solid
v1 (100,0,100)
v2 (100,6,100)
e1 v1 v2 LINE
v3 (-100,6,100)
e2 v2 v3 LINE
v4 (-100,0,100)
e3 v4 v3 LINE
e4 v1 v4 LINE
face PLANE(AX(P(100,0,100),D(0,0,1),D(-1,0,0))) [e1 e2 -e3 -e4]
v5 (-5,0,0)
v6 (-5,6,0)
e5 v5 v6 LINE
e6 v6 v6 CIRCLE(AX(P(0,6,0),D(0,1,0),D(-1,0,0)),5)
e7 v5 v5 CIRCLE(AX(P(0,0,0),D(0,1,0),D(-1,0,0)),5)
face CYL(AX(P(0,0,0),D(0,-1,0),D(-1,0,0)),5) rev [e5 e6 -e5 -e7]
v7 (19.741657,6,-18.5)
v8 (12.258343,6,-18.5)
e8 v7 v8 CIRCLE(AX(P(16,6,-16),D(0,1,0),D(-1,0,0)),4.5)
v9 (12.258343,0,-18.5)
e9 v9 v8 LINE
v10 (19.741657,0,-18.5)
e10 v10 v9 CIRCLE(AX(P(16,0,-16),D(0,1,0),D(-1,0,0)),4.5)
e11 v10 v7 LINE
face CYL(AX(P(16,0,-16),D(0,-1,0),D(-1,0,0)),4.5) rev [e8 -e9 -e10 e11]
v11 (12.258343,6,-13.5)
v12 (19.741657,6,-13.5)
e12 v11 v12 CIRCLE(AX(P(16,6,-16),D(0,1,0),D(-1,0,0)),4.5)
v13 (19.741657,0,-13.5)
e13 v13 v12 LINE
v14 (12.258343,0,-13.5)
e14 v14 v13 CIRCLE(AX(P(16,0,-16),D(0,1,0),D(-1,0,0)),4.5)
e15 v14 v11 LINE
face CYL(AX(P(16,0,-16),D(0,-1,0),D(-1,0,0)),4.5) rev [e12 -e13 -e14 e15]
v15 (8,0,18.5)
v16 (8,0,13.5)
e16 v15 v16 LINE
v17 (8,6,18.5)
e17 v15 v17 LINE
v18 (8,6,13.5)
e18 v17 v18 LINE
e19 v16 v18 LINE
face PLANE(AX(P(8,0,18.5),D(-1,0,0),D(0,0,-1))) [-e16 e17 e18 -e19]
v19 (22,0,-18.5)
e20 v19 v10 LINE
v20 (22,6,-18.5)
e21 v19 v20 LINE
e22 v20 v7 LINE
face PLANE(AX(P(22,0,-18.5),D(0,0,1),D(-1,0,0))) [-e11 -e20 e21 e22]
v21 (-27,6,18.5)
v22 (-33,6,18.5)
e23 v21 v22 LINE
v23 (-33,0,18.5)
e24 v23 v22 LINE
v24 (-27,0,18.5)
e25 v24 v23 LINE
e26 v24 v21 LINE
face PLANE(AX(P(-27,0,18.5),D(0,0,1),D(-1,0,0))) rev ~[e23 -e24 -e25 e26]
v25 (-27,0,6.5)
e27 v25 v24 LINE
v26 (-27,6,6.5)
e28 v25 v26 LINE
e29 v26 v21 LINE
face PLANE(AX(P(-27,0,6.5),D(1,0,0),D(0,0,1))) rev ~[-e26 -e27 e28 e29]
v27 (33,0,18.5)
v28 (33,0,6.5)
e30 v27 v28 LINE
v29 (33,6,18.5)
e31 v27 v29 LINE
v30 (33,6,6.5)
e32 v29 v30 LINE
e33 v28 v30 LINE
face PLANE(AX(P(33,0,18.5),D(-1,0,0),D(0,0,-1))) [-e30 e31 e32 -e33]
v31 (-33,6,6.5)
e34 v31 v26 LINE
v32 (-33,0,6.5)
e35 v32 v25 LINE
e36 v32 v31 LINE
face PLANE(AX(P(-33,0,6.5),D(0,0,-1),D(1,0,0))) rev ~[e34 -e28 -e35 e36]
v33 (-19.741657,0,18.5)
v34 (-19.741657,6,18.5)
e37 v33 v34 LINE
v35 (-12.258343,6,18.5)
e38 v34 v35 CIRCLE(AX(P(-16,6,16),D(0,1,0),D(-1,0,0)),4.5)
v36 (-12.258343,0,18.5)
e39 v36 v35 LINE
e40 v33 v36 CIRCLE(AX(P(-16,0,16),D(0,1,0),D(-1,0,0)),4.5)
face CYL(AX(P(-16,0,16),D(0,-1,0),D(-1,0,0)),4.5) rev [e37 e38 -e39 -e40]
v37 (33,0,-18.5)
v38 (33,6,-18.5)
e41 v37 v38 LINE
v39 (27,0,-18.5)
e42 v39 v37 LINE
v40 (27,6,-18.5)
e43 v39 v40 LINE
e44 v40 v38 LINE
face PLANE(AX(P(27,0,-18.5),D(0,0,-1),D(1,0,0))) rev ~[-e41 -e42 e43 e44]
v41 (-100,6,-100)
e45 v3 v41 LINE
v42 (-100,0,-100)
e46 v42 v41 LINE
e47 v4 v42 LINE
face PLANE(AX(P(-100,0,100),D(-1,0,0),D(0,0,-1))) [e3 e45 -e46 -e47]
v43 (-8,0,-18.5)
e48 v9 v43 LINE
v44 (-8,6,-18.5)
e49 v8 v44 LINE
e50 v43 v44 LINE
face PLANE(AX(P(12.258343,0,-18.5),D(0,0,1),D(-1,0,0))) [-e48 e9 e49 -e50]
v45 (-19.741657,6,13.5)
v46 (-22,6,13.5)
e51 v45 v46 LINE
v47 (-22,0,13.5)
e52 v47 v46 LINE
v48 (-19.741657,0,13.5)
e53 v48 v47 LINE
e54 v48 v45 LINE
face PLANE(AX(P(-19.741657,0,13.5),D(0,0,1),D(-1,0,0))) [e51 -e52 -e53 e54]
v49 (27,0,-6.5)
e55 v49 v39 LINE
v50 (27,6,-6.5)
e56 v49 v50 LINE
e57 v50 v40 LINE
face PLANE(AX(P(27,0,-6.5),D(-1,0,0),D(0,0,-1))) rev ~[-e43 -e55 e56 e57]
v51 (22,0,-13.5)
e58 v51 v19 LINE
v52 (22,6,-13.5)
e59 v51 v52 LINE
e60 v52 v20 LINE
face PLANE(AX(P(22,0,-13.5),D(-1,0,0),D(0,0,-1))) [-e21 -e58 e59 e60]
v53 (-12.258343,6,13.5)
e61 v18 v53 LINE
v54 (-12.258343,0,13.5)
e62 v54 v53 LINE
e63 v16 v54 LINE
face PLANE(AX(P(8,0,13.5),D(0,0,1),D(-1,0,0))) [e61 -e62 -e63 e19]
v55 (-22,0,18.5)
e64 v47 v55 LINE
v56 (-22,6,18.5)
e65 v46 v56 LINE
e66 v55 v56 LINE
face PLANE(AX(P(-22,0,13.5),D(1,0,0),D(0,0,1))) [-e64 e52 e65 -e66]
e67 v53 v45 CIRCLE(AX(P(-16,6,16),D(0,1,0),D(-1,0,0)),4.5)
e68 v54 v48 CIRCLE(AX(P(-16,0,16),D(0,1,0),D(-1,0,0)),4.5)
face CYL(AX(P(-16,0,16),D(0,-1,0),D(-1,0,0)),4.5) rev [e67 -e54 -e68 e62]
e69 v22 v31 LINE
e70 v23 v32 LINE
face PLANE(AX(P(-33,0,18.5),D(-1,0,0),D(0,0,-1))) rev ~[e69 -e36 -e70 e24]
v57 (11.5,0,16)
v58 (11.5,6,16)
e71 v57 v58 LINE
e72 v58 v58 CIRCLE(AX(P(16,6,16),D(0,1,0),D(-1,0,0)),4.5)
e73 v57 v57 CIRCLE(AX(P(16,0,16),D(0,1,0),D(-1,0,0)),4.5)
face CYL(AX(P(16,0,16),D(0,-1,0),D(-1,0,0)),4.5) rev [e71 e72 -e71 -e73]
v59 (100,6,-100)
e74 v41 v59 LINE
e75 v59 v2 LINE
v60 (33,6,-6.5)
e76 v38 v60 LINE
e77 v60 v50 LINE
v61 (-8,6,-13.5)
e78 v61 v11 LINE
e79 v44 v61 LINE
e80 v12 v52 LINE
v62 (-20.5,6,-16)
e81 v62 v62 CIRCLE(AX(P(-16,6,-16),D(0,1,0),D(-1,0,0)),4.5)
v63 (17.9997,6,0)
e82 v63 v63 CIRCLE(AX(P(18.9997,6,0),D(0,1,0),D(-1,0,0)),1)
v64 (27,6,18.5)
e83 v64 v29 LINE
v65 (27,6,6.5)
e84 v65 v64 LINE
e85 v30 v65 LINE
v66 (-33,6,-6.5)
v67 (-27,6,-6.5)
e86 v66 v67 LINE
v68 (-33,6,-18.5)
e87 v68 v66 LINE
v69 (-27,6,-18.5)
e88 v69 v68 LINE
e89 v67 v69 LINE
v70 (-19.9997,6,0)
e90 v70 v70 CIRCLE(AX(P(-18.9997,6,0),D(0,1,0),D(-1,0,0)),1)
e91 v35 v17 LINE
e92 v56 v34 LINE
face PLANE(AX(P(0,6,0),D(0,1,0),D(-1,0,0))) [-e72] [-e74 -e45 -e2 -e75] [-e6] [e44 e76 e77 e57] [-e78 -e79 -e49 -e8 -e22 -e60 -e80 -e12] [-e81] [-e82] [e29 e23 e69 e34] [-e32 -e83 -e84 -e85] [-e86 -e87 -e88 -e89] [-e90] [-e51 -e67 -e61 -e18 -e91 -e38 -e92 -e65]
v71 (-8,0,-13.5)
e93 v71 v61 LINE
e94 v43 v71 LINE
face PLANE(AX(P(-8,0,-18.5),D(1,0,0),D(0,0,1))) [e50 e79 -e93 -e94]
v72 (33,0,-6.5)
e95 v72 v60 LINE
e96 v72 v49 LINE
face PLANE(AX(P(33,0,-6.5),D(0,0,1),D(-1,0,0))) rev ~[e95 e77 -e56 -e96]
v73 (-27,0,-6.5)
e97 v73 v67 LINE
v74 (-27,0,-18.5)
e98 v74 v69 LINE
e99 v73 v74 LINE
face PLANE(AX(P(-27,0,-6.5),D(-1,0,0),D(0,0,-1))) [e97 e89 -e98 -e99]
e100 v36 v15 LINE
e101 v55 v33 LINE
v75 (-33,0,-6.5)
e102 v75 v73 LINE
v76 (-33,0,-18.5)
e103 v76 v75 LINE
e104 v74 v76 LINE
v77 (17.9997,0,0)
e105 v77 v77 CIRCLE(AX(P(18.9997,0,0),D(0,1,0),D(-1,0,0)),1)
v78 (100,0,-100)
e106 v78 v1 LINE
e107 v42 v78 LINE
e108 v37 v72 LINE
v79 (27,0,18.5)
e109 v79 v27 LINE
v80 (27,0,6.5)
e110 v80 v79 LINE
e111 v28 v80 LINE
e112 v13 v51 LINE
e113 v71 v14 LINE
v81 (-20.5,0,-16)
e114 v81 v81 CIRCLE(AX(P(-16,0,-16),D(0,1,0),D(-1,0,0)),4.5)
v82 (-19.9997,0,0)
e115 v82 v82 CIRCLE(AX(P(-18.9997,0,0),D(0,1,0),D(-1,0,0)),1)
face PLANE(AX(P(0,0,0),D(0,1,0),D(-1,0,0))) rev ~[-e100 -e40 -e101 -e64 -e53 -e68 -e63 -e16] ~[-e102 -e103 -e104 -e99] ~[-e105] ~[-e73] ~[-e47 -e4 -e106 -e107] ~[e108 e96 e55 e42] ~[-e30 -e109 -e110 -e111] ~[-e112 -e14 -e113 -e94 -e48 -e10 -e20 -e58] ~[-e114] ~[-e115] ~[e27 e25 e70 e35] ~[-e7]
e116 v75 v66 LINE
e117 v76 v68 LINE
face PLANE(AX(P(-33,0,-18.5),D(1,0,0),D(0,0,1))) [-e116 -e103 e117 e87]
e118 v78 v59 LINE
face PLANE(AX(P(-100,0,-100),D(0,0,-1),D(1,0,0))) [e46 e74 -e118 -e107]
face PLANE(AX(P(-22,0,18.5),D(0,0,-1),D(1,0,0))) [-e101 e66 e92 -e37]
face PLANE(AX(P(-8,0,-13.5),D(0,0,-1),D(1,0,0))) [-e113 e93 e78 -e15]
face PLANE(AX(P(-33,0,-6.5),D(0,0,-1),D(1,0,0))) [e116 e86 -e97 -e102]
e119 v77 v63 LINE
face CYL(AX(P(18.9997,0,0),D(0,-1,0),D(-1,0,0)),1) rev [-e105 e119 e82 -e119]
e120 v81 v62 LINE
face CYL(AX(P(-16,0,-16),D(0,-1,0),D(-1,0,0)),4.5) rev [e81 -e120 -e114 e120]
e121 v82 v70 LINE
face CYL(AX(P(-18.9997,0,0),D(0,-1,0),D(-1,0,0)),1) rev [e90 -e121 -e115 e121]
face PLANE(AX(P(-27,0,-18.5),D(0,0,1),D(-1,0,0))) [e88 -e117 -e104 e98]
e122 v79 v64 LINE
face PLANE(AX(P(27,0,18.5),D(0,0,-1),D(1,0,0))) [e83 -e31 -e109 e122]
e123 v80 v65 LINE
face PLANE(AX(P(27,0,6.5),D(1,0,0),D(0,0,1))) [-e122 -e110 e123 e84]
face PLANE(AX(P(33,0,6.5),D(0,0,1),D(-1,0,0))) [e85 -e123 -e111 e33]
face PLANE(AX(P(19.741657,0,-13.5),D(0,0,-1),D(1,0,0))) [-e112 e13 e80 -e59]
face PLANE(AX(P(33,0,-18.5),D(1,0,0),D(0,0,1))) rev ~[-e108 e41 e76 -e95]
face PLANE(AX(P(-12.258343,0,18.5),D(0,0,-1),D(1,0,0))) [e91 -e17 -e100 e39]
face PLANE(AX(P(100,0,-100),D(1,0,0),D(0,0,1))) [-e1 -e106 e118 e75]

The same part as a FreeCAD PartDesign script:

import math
import FreeCAD as App
import Part
import Sketcher

V = App.Vector


def add_polygon(sketch, points):
    """Adds a closed chain of lines whose ends are joined by coincident constraints."""
    first, n = sketch.GeometryCount, len(points)
    for a, b in zip(points, points[1:] + points[:1]):
        sketch.addGeometry(Part.LineSegment(App.Vector(*a, 0), App.Vector(*b, 0)), False)
    for i in range(n):
        sketch.addConstraint(Sketcher.Constraint("Coincident", first + i, 2, first + (i + 1) % n, 1))

doc = App.newDocument("Part")
body = doc.addObject("PartDesign::Body", "Body")

# Sketch on XZ plane
sketch1 = doc.addObject("Sketcher::SketchObject", "Sketch")
body.addObject(sketch1)
sketch1.AttachmentSupport = (doc.XZ_Plane, [""])
sketch1.MapMode = "FlatFace"
add_polygon(sketch1, [(-100, 100), (100, 100), (100, -100), (-100, -100)])  # lines 0-3
add_polygon(sketch1, [(27, -6.5), (27, -18.5), (33, -18.5), (33, -6.5)])  # lines 4-7
sketch1.addGeometry(Part.LineSegment(V(12.3, -13.5, 0), V(-8, -13.5, 0)), False)  # 8
sketch1.addGeometry(Part.LineSegment(V(-8, -13.5, 0), V(-8, -18.5, 0)), False)  # 9
sketch1.addGeometry(Part.LineSegment(V(-8, -18.5, 0), V(12.3, -18.5, 0)), False)  # 10
sketch1.addGeometry(Part.ArcOfCircle(Part.Circle(V(16, -16, 0), V(0, 0, 1), 4.5), math.radians(-146), math.radians(-34)), False)  # 11
sketch1.addGeometry(Part.LineSegment(V(19.7, -18.5, 0), V(22, -18.5, 0)), False)  # 12
sketch1.addGeometry(Part.LineSegment(V(22, -18.5, 0), V(22, -13.5, 0)), False)  # 13
sketch1.addGeometry(Part.LineSegment(V(22, -13.5, 0), V(19.7, -13.5, 0)), False)  # 14
sketch1.addGeometry(Part.ArcOfCircle(Part.Circle(V(16, -16, 0), V(0, 0, 1), 4.5), math.radians(34), math.radians(146)), False)  # 15
sketch1.addGeometry(Part.Circle(V(-16, -16, 0), V(0, 0, 1), 4.5), False)  # 16
add_polygon(sketch1, [(-33, -18.5), (-27, -18.5), (-27, -6.5), (-33, -6.5)])  # lines 17-20
add_polygon(sketch1, [(27, 18.5), (27, 6.5), (33, 6.5), (33, 18.5)])  # lines 21-24
sketch1.addGeometry(Part.Circle(V(19, 0, 0), V(0, 0, 1), 1), False)  # 25
sketch1.addGeometry(Part.Circle(V(16, 16, 0), V(0, 0, 1), 4.5), False)  # 26
sketch1.addGeometry(Part.Circle(V(0, 0, 0), V(0, 0, 1), 5), False)  # 27
sketch1.addGeometry(Part.Circle(V(-19, 0, 0), V(0, 0, 1), 1), False)  # 28
sketch1.addGeometry(Part.LineSegment(V(-12.3, 13.5, 0), V(8, 13.5, 0)), False)  # 29
sketch1.addGeometry(Part.LineSegment(V(8, 13.5, 0), V(8, 18.5, 0)), False)  # 30
sketch1.addGeometry(Part.LineSegment(V(8, 18.5, 0), V(-12.3, 18.5, 0)), False)  # 31
sketch1.addGeometry(Part.ArcOfCircle(Part.Circle(V(-16, 16, 0), V(0, 0, 1), 4.5), math.radians(34), math.radians(146)), False)  # 32
sketch1.addGeometry(Part.LineSegment(V(-19.7, 18.5, 0), V(-22, 18.5, 0)), False)  # 33
sketch1.addGeometry(Part.LineSegment(V(-22, 18.5, 0), V(-22, 13.5, 0)), False)  # 34
sketch1.addGeometry(Part.LineSegment(V(-22, 13.5, 0), V(-19.7, 13.5, 0)), False)  # 35
sketch1.addGeometry(Part.ArcOfCircle(Part.Circle(V(-16, 16, 0), V(0, 0, 1), 4.5), math.radians(-146), math.radians(-34)), False)  # 36
add_polygon(sketch1, [(-27, 6.5), (-27, 18.5), (-33, 18.5), (-33, 6.5)])  # lines 37-40
sketch1.addConstraint(Sketcher.Constraint("Coincident", 8, 2, 9, 1))
sketch1.addConstraint(Sketcher.Constraint("Coincident", 9, 2, 10, 1))
sketch1.addConstraint(Sketcher.Constraint("Coincident", 10, 2, 11, 1))
sketch1.addConstraint(Sketcher.Constraint("Coincident", 11, 2, 12, 1))
sketch1.addConstraint(Sketcher.Constraint("Coincident", 12, 2, 13, 1))
sketch1.addConstraint(Sketcher.Constraint("Coincident", 13, 2, 14, 1))
sketch1.addConstraint(Sketcher.Constraint("Coincident", 14, 2, 15, 1))
sketch1.addConstraint(Sketcher.Constraint("Coincident", 15, 2, 8, 1))
sketch1.addConstraint(Sketcher.Constraint("Coincident", 29, 2, 30, 1))
sketch1.addConstraint(Sketcher.Constraint("Coincident", 30, 2, 31, 1))
sketch1.addConstraint(Sketcher.Constraint("Coincident", 31, 2, 32, 1))
sketch1.addConstraint(Sketcher.Constraint("Coincident", 32, 2, 33, 1))
sketch1.addConstraint(Sketcher.Constraint("Coincident", 33, 2, 34, 1))
sketch1.addConstraint(Sketcher.Constraint("Coincident", 34, 2, 35, 1))
sketch1.addConstraint(Sketcher.Constraint("Coincident", 35, 2, 36, 1))
sketch1.addConstraint(Sketcher.Constraint("Coincident", 36, 2, 29, 1))
sketch1.addConstraint(Sketcher.Constraint("Horizontal", 0))
sketch1.addConstraint(Sketcher.Constraint("Vertical", 1))
sketch1.addConstraint(Sketcher.Constraint("Horizontal", 2))
sketch1.addConstraint(Sketcher.Constraint("Vertical", 3))
sketch1.addConstraint(Sketcher.Constraint("Vertical", 4))
sketch1.addConstraint(Sketcher.Constraint("Horizontal", 5))
sketch1.addConstraint(Sketcher.Constraint("Vertical", 6))
sketch1.addConstraint(Sketcher.Constraint("Horizontal", 7))
sketch1.addConstraint(Sketcher.Constraint("Horizontal", 8))
sketch1.addConstraint(Sketcher.Constraint("Vertical", 9))
sketch1.addConstraint(Sketcher.Constraint("Horizontal", 10))
sketch1.addConstraint(Sketcher.Constraint("Horizontal", 12))
sketch1.addConstraint(Sketcher.Constraint("Vertical", 13))
sketch1.addConstraint(Sketcher.Constraint("Horizontal", 14))
sketch1.addConstraint(Sketcher.Constraint("Horizontal", 17))
sketch1.addConstraint(Sketcher.Constraint("Vertical", 18))
sketch1.addConstraint(Sketcher.Constraint("Horizontal", 19))
sketch1.addConstraint(Sketcher.Constraint("Vertical", 20))
sketch1.addConstraint(Sketcher.Constraint("Vertical", 21))
sketch1.addConstraint(Sketcher.Constraint("Horizontal", 22))
sketch1.addConstraint(Sketcher.Constraint("Vertical", 23))
sketch1.addConstraint(Sketcher.Constraint("Horizontal", 24))
sketch1.addConstraint(Sketcher.Constraint("Horizontal", 29))
sketch1.addConstraint(Sketcher.Constraint("Vertical", 30))
sketch1.addConstraint(Sketcher.Constraint("Horizontal", 31))
sketch1.addConstraint(Sketcher.Constraint("Horizontal", 33))
sketch1.addConstraint(Sketcher.Constraint("Vertical", 34))
sketch1.addConstraint(Sketcher.Constraint("Horizontal", 35))
sketch1.addConstraint(Sketcher.Constraint("Vertical", 37))
sketch1.addConstraint(Sketcher.Constraint("Horizontal", 38))
sketch1.addConstraint(Sketcher.Constraint("Vertical", 39))
sketch1.addConstraint(Sketcher.Constraint("Horizontal", 40))
sketch1.addConstraint(Sketcher.Constraint("Coincident", 27, 3, -1, 1))
sketch1.addConstraint(Sketcher.Constraint("Coincident", 15, 3, 11, 3))
sketch1.addConstraint(Sketcher.Constraint("Coincident", 36, 3, 32, 3))
sketch1.addConstraint(Sketcher.Constraint("Equal", 11, 15))
sketch1.addConstraint(Sketcher.Constraint("Equal", 15, 16))
sketch1.addConstraint(Sketcher.Constraint("Equal", 16, 26))
sketch1.addConstraint(Sketcher.Constraint("Equal", 25, 28))
sketch1.addConstraint(Sketcher.Constraint("Equal", 26, 32))
sketch1.addConstraint(Sketcher.Constraint("Equal", 32, 36))
sketch1.addConstraint(Sketcher.Constraint("Symmetric", 16, 3, 26, 3, -1, 1))
sketch1.addConstraint(Sketcher.Constraint("Symmetric", 25, 3, 28, 3, -1, 1))
sketch1.addConstraint(Sketcher.Constraint("Symmetric", 11, 3, 32, 3, -1, 1))
sketch1.addConstraint(Sketcher.Constraint("Symmetric", 0, 2, 2, 2, -1, 1))
sketch1.addConstraint(Sketcher.Constraint("Symmetric", 18, 2, 21, 2, -1, 1))
sketch1.addConstraint(Sketcher.Constraint("Symmetric", 20, 2, 23, 2, -1, 1))
sketch1.addConstraint(Sketcher.Constraint("Symmetric", 8, 2, 29, 2, -1, 1))
sketch1.addConstraint(Sketcher.Constraint("Symmetric", 12, 2, 33, 2, -1, 1))
sketch1.addConstraint(Sketcher.Constraint("Symmetric", 4, 2, 37, 2, -1, 1))
sketch1.addConstraint(Sketcher.Constraint("Symmetric", 6, 2, 39, 2, -1, 1))
sketch1.addConstraint(Sketcher.Constraint("Symmetric", 11, 3, 16, 3, -2))
sketch1.addConstraint(Sketcher.Constraint("Symmetric", 4, 2, 17, 2, -2))
sketch1.addConstraint(Sketcher.Constraint("Symmetric", 6, 2, 19, 2, -2))
sketch1.addConstraint(Sketcher.Constraint("PointOnObject", 25, 3, -1))
sketch1.addConstraint(Sketcher.Constraint("Horizontal", 5, 2, 9, 2))
sketch1.addConstraint(Sketcher.Constraint("Horizontal", 10, 2, 11, 2))
sketch1.addConstraint(Sketcher.Constraint("Horizontal", 8, 2, 13, 2))
sketch1.addConstraint(Sketcher.Constraint("Horizontal", 24, 2, 30, 2))
sketch1.addConstraint(Sketcher.Constraint("Horizontal", 29, 2, 34, 2))
sketch1.addConstraint(Sketcher.Constraint("Vertical", 11, 2, 14, 2))
sketch1.addConstraint(Sketcher.Constraint("Equal", 2, 1))
sketch1.addConstraint(Sketcher.Constraint("Diameter", 16, 9.0))
sketch1.addConstraint(Sketcher.Constraint("Diameter", 25, 2.0))
sketch1.addConstraint(Sketcher.Constraint("Diameter", 27, 10.0))
sketch1.addConstraint(Sketcher.Constraint("DistanceX", 0, 1, 0, 2, 200.0))
sketch1.addConstraint(Sketcher.Constraint("DistanceX", 5, 1, 5, 2, 6.0))
sketch1.addConstraint(Sketcher.Constraint("DistanceY", 4, 2, 4, 1, 12.0))
sketch1.addConstraint(Sketcher.Constraint("DistanceY", 9, 2, 9, 1, 5.0))
sketch1.addConstraint(Sketcher.Constraint("DistanceX", -1, 1, 11, 3, 16.0))
sketch1.addConstraint(Sketcher.Constraint("DistanceY", 11, 3, -1, 1, 16.0))
sketch1.addConstraint(Sketcher.Constraint("DistanceX", 8, 2, -1, 1, 8.0))
sketch1.addConstraint(Sketcher.Constraint("DistanceX", 12, 2, 4, 2, 5.0))
sketch1.addConstraint(Sketcher.Constraint("DistanceX", 11, 3, 12, 2, 6.0))
sketch1.addConstraint(Sketcher.Constraint("DistanceX", 25, 3, 4, 2, 8.0003))
pad1 = doc.addObject("PartDesign::Pad", "Pad")
body.addObject(pad1)
pad1.Profile = sketch1
pad1.Length = 6
pad1.Reversed = True

doc.recompute()
